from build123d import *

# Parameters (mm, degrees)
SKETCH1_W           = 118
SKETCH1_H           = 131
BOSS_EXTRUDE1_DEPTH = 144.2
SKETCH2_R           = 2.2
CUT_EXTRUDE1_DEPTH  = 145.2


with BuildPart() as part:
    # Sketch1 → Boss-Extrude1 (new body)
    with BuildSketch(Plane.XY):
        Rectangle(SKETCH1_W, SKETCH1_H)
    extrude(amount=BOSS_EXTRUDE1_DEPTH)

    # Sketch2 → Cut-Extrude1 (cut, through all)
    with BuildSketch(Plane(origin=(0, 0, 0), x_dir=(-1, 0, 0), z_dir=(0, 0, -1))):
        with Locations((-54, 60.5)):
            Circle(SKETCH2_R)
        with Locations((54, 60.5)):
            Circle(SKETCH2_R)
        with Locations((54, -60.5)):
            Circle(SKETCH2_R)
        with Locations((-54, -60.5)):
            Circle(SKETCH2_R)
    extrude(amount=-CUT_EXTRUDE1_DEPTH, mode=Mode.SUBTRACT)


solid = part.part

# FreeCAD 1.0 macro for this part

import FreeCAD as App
import Part
import Sketcher
from FreeCAD import Vector
Q = App.Units.Quantity

doc = App.newDocument("Part")
body = doc.addObject("PartDesign::Body", "Body")

sketch1 = doc.addObject("Sketcher::SketchObject", "Sketch")
body.addObject(sketch1)
sketch1.AttachmentSupport = (doc.XY_Plane, [""])
sketch1.MapMode = "FlatFace"
sketch1.addGeometry([
    Part.LineSegment(Vector(-59, 66, 0), Vector(-59, -66, 0)),
    Part.LineSegment(Vector(-59, -66, 0), Vector(59, -66, 0)),
    Part.LineSegment(Vector(59, -66, 0), Vector(59, 66, 0)),
    Part.LineSegment(Vector(59, 66, 0), Vector(-59, 66, 0)),
], False)
sketch1.addConstraint([
    Sketcher.Constraint("Coincident", 0, 2, 1, 1),
    Sketcher.Constraint("Coincident", 1, 2, 2, 1),
    Sketcher.Constraint("Coincident", 2, 2, 3, 1),
    Sketcher.Constraint("Coincident", 3, 2, 0, 1),
    Sketcher.Constraint("Vertical", 0),
    Sketcher.Constraint("Horizontal", 1),
    Sketcher.Constraint("Vertical", 2),
    Sketcher.Constraint("Horizontal", 3),
    Sketcher.Constraint("Symmetric", 0, 2, 2, 2, -1, 1),
    Sketcher.Constraint("DistanceX", 1, 1, 1, 2, Q("118 mm")),
    Sketcher.Constraint("DistanceY", 0, 2, 0, 1, Q("131 mm")),
])
pad1 = doc.addObject("PartDesign::Pad", "Pad")
body.addObject(pad1)
pad1.Profile = sketch1
pad1.Length = 144.2

sketch2 = doc.addObject("Sketcher::SketchObject", "Sketch001")
body.addObject(sketch2)
sketch2.AttachmentSupport = (doc.XY_Plane, [""])
sketch2.MapMode = "FlatFace"
sketch2.addGeometry([
    Part.Circle(Vector(54, 60.5, 0), Vector(0, 0, 1), 2.2),
    Part.Circle(Vector(-54, 60.5, 0), Vector(0, 0, 1), 2.2),
    Part.Circle(Vector(-54, -60.5, 0), Vector(0, 0, 1), 2.2),
    Part.Circle(Vector(54, -60.5, 0), Vector(0, 0, 1), 2.2),
], False)
sketch2.addConstraint([
    Sketcher.Constraint("Equal", 0, 1),
    Sketcher.Constraint("Equal", 1, 2),
    Sketcher.Constraint("Equal", 2, 3),
    Sketcher.Constraint("Symmetric", 0, 3, 2, 3, -1, 1),
    Sketcher.Constraint("Symmetric", 1, 3, 3, 3, -1, 1),
    Sketcher.Constraint("Symmetric", 0, 3, 1, 3, -2),
    Sketcher.Constraint("Diameter", 0, Q("4.4 mm")),
    Sketcher.Constraint("DistanceX", -1, 1, 0, 3, Q("54 mm")),
    Sketcher.Constraint("DistanceY", 2, 3, 1, 3, Q("121 mm")),
])
pocket1 = doc.addObject("PartDesign::Pocket", "Pocket")
body.addObject(pocket1)
pocket1.Profile = sketch2
pocket1.Type = "ThroughAll"
pocket1.Reversed = True

doc.recompute()
